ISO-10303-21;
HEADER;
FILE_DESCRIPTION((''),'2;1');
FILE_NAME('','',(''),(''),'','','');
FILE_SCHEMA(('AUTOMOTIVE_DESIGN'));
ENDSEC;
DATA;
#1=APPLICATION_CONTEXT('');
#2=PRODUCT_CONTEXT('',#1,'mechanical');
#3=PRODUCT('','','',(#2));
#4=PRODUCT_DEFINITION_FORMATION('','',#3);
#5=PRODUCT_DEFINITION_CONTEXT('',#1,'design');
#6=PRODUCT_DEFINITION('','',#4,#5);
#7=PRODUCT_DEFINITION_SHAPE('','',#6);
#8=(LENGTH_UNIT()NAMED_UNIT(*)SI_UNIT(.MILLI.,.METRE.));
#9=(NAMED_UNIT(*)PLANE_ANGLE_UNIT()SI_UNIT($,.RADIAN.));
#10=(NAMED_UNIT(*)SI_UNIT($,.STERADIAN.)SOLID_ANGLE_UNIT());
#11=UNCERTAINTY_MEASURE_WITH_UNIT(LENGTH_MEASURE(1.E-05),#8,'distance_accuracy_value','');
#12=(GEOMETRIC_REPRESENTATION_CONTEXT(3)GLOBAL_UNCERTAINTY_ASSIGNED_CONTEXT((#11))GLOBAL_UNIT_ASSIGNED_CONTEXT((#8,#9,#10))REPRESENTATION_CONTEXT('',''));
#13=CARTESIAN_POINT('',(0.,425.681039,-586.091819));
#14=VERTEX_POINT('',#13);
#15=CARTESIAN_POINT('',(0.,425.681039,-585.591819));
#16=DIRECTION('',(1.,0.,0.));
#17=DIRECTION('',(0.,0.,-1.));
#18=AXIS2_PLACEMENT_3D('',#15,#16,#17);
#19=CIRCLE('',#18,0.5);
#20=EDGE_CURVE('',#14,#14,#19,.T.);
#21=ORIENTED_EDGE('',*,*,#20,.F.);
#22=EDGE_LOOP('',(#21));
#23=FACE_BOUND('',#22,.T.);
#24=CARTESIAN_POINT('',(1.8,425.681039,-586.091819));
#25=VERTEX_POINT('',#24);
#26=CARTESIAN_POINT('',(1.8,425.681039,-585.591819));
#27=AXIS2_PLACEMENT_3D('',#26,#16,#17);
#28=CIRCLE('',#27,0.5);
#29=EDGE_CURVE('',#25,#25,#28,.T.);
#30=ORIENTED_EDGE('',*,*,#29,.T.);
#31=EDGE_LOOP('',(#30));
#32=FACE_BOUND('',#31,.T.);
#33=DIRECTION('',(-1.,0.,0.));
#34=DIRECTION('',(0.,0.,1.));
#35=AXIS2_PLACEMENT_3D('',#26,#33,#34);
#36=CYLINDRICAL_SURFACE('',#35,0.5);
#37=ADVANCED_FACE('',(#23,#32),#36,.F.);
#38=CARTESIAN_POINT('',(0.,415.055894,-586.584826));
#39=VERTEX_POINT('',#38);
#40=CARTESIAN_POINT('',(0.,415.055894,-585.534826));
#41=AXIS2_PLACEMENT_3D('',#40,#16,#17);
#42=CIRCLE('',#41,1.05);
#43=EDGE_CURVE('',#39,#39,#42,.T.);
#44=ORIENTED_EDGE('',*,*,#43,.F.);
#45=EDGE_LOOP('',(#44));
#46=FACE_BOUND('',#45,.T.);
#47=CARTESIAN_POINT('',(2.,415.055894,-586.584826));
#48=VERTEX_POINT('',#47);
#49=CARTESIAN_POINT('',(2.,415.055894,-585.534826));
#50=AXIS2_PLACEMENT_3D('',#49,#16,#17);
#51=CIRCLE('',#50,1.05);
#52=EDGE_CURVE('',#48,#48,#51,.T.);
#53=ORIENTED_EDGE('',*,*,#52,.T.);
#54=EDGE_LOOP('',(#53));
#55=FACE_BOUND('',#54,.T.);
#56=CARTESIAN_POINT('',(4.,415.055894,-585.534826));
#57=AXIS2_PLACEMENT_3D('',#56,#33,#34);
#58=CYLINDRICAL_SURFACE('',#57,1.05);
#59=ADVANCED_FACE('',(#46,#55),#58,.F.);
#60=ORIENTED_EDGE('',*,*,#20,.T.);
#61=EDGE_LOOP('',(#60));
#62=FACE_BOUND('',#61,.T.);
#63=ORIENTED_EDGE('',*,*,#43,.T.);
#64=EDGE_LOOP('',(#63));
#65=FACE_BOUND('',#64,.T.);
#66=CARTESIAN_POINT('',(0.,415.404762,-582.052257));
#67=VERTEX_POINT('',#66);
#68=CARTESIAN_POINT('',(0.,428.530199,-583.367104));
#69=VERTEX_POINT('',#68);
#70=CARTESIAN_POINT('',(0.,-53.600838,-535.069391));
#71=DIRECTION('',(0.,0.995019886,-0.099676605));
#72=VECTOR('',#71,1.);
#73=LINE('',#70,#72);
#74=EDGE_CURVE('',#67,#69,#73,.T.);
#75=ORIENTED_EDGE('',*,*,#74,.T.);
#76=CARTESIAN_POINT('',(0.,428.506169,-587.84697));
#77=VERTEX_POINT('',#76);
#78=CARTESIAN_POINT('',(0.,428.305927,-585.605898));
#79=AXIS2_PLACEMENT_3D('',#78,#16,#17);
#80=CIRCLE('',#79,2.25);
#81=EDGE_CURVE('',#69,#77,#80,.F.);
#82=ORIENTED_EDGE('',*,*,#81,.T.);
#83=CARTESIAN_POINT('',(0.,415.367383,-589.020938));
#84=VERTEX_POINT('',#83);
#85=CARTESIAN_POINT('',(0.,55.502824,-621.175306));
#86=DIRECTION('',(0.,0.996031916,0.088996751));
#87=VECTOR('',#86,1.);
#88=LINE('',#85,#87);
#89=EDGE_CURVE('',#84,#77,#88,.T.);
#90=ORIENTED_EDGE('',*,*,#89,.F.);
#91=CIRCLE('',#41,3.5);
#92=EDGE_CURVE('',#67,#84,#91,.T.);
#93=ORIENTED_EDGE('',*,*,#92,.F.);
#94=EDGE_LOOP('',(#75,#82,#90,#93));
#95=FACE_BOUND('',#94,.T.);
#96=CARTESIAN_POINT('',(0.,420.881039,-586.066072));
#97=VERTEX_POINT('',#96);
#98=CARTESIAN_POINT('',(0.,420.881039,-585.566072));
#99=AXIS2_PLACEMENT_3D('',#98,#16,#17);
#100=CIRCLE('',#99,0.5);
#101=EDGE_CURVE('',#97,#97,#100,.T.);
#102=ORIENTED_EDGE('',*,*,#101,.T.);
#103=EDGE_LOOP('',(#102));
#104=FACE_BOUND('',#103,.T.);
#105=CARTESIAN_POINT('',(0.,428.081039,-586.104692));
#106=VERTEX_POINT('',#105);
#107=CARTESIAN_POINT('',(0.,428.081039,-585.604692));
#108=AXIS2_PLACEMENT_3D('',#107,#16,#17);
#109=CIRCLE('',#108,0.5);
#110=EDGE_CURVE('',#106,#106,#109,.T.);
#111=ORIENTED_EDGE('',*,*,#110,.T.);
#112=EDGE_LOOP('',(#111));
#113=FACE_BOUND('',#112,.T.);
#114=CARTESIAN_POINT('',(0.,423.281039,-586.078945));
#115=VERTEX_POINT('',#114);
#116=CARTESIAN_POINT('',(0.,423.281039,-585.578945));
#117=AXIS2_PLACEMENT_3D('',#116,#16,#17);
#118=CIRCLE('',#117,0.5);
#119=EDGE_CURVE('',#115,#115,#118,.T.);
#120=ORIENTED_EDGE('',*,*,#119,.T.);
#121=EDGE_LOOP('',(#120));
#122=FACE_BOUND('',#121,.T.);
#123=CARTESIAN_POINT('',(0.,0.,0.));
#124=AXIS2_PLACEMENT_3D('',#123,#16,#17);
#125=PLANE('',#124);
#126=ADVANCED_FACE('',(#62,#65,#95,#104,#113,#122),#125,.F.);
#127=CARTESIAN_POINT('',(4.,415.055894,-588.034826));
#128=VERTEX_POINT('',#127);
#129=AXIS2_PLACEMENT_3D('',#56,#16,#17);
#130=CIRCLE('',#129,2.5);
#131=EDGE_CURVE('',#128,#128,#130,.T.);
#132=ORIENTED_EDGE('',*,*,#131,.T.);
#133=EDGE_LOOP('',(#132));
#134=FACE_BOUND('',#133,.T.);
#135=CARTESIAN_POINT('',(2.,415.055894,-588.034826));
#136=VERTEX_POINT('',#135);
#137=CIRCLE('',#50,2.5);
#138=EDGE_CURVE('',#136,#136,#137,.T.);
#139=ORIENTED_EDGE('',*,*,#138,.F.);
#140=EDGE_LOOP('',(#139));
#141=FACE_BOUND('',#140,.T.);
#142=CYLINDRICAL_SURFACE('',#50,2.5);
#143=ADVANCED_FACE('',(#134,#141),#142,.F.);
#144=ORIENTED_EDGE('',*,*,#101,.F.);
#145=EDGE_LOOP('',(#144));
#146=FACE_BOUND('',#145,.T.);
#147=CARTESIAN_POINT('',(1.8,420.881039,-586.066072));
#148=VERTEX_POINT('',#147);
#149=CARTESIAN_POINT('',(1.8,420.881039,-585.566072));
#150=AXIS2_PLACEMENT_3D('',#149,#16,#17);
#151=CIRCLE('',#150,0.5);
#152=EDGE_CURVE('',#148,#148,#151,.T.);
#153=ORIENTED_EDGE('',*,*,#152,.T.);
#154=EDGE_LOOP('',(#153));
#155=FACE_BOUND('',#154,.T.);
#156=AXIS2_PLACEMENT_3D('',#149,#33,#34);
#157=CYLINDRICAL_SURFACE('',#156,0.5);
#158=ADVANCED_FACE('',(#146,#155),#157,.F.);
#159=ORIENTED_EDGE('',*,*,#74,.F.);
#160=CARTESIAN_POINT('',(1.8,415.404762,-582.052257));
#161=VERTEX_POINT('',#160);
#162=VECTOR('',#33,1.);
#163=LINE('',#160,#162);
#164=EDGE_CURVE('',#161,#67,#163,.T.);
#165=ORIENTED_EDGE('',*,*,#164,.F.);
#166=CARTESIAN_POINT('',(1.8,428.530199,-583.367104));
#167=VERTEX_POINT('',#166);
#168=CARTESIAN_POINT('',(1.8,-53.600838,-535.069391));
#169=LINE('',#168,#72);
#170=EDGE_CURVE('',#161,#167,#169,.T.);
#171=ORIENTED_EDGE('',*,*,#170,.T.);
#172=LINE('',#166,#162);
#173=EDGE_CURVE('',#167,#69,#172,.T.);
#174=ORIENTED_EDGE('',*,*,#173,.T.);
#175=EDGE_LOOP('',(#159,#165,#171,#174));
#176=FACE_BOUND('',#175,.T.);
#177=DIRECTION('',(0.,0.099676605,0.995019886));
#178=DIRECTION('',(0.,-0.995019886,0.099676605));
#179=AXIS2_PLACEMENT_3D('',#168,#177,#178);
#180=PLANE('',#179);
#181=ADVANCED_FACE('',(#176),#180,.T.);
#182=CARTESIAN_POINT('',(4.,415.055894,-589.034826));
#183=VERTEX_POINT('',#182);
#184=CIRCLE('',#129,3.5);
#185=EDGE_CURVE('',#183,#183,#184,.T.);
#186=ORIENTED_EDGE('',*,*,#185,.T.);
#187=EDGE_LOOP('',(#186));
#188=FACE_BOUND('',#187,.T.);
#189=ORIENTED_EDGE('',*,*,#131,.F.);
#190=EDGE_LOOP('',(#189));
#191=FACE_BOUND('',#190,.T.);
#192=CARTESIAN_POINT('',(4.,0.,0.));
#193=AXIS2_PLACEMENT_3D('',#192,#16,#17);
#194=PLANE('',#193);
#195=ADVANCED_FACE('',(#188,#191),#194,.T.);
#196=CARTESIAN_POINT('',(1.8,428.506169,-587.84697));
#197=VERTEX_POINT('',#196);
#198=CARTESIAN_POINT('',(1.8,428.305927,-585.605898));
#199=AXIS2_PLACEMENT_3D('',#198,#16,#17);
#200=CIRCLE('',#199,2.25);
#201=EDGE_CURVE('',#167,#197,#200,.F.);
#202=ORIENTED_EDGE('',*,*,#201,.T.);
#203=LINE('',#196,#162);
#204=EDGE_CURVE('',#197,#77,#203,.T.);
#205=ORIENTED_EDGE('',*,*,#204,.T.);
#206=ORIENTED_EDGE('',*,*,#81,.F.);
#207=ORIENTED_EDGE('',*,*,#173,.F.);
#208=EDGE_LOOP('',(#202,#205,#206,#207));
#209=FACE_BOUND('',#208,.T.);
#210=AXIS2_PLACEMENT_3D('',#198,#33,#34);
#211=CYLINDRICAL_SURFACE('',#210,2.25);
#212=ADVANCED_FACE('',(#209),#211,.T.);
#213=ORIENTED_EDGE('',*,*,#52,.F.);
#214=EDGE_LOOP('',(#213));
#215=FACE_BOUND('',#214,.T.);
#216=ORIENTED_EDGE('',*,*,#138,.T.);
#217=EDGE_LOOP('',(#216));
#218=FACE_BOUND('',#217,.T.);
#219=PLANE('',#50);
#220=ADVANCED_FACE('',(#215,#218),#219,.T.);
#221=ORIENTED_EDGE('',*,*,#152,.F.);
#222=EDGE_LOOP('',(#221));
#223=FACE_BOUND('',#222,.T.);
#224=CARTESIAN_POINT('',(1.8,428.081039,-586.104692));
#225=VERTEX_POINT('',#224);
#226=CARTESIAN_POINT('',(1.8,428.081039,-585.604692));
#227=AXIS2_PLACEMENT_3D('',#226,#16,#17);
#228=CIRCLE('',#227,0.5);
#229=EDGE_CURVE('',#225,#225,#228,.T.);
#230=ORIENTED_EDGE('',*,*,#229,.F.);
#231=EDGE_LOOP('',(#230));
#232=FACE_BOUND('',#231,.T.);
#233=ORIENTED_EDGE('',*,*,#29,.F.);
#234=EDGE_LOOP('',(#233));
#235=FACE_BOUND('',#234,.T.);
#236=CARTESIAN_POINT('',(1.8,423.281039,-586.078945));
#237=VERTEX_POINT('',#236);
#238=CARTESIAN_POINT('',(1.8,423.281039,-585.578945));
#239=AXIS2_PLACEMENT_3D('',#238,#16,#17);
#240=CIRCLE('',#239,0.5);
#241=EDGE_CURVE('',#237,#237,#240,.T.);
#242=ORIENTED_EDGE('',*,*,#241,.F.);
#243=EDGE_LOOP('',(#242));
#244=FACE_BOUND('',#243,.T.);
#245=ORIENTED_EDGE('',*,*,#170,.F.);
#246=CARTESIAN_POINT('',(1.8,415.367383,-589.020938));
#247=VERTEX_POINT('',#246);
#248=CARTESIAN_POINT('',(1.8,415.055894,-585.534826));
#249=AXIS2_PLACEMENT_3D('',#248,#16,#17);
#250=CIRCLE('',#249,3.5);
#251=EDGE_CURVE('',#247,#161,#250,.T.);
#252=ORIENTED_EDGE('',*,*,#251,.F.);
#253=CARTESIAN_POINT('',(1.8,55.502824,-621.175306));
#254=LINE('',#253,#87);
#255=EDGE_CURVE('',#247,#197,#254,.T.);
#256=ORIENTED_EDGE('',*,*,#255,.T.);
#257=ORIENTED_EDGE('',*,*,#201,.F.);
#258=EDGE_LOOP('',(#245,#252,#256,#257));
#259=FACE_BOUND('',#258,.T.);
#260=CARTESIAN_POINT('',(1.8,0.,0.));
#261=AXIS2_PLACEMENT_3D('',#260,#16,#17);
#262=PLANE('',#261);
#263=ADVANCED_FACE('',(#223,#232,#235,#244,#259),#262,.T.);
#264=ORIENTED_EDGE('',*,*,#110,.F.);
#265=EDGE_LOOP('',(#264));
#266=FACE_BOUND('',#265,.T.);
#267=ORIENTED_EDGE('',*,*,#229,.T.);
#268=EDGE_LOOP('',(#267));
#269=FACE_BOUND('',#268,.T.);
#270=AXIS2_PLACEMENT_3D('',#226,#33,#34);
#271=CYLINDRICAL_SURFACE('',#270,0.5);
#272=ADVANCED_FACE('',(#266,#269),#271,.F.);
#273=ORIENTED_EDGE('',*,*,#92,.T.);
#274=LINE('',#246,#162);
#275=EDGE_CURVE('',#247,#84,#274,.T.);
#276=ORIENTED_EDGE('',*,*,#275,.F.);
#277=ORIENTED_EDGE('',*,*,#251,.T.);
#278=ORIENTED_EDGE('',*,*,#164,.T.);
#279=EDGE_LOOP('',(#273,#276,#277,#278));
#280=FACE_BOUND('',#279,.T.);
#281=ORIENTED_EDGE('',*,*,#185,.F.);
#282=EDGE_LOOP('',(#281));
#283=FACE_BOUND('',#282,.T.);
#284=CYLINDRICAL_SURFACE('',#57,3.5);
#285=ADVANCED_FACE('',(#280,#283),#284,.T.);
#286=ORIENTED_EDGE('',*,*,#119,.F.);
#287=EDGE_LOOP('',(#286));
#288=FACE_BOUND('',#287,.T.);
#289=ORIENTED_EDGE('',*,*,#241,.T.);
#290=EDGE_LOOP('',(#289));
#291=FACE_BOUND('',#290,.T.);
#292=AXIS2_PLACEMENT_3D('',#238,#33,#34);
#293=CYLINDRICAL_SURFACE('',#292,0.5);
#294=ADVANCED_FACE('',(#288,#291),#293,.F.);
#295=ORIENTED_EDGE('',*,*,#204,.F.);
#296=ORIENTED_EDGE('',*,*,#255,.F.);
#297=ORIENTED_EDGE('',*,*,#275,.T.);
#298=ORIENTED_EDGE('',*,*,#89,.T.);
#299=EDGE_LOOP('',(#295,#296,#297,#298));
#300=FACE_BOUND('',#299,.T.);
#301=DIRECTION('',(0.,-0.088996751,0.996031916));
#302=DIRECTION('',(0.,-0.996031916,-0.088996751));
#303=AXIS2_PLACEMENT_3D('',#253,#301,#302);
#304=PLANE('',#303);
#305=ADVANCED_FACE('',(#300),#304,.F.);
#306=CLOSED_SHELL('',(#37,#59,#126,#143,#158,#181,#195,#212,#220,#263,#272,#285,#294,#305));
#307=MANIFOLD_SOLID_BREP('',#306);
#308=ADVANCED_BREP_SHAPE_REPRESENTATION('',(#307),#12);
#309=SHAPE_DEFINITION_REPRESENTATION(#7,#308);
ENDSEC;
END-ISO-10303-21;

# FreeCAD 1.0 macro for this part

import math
import FreeCAD as App
import Part
import Sketcher
from FreeCAD import Vector

doc = App.newDocument("Part")
body = doc.addObject("PartDesign::Body", "Body")

# Sketch on YZ plane
sketch1 = doc.addObject("Sketcher::SketchObject", "Sketch")
body.addObject(sketch1)
sketch1.AttachmentSupport = (doc.YZ_Plane, [""])
sketch1.MapMode = "FlatFace"
sketch1.addGeometry(Part.Circle(Vector(415.055894, -585.534826, 0), Vector(0, 0, 1), 3.5), False)
sketch1.addGeometry(Part.Circle(Vector(415.055894, -585.534826, 0), Vector(0, 0, 1), 1.05), False)
sketch1.addConstraint(Sketcher.Constraint("Coincident", 1, 3, 0, 3))
sketch1.addConstraint(Sketcher.Constraint("Diameter", 0, 7.0))
sketch1.addConstraint(Sketcher.Constraint("Diameter", 1, 2.1))
sketch1.addConstraint(Sketcher.Constraint("DistanceX", -1, 1, 0, 3, 415.055894))
sketch1.addConstraint(Sketcher.Constraint("DistanceY", 0, 3, -1, 1, 585.534826))
pad1 = doc.addObject("PartDesign::Pad", "Pad")
body.addObject(pad1)
pad1.Profile = sketch1
pad1.Length = 4

# Sketch on YZ plane
sketch2 = doc.addObject("Sketcher::SketchObject", "Sketch001")
body.addObject(sketch2)
sketch2.AttachmentSupport = (doc.YZ_Plane, [""])
sketch2.MapMode = "FlatFace"
sketch2.addGeometry(Part.LineSegment(Vector(428.530199, -583.367104, 0), Vector(415.404762, -582.052257, 0)), False)
sketch2.addGeometry(Part.ArcOfCircle(Part.Circle(Vector(415.055894, -585.534826, 0), Vector(0, 0, 1), 3.5), math.radians(-84.894106), math.radians(84.279452)), False)
sketch2.addGeometry(Part.LineSegment(Vector(415.367383, -589.020938, 0), Vector(428.506169, -587.84697, 0)), False)
sketch2.addGeometry(Part.ArcOfCircle(Part.Circle(Vector(428.305927, -585.605898, 0), Vector(0, 0, 1), 2.25), math.radians(-84.894106), math.radians(84.279452)), False)
sketch2.addGeometry(Part.Circle(Vector(420.881039, -585.566072, 0), Vector(0, 0, 1), 0.5), False)
sketch2.addGeometry(Part.Circle(Vector(423.281039, -585.578945, 0), Vector(0, 0, 1), 0.5), False)
sketch2.addGeometry(Part.Circle(Vector(425.681039, -585.591819, 0), Vector(0, 0, 1), 0.5), False)
sketch2.addGeometry(Part.Circle(Vector(428.081039, -585.604692, 0), Vector(0, 0, 1), 0.5), False)
sketch2.addConstraint(Sketcher.Constraint("Tangent", 0, 2, 1, 2))
sketch2.addConstraint(Sketcher.Constraint("Tangent", 1, 1, 2, 1))
sketch2.addConstraint(Sketcher.Constraint("Tangent", 2, 2, 3, 1))
sketch2.addConstraint(Sketcher.Constraint("Tangent", 3, 2, 0, 1))
sketch2.addConstraint(Sketcher.Constraint("Equal", 4, 5))
sketch2.addConstraint(Sketcher.Constraint("Equal", 5, 6))
sketch2.addConstraint(Sketcher.Constraint("Equal", 6, 7))
sketch2.addConstraint(Sketcher.Constraint("Diameter", 4, 1.0))
sketch2.addConstraint(Sketcher.Constraint("Radius", 1, 3.5))
sketch2.addConstraint(Sketcher.Constraint("Radius", 3, 2.25))
sketch2.addConstraint(Sketcher.Constraint("DistanceX", 4, 3, 5, 3, 2.4))
sketch2.addConstraint(Sketcher.Constraint("DistanceX", 5, 3, 6, 3, 2.4))
sketch2.addConstraint(Sketcher.Constraint("DistanceX", 6, 3, 7, 3, 2.4))
sketch2.addConstraint(Sketcher.Constraint("DistanceY", 3, 3, -1, 1, 585.605898))
sketch2.addConstraint(Sketcher.Constraint("DistanceX", -1, 1, 3, 2, 428.530199))
sketch2.addConstraint(Sketcher.Constraint("DistanceY", 2, 2, 4, 3, 2.280898))
sketch2.addConstraint(Sketcher.Constraint("Distance", 0, 13.19113))
sketch2.addConstraint(Sketcher.Constraint("DistanceX", -1, 1, 4, 3, 420.881039))
sketch2.addConstraint(Sketcher.Constraint("DistanceY", 4, 3, -1, 1, 585.566072))
sketch2.addConstraint(Sketcher.Constraint("DistanceY", 6, 3, -1, 1, 585.591819))
sketch2.addConstraint(Sketcher.Constraint("DistanceY", 5, 3, 1, 3, 0.044119))
sketch2.addConstraint(Sketcher.Constraint("DistanceY", 7, 3, 4, 3, 0.03862))
pad2 = doc.addObject("PartDesign::Pad", "Pad001")
body.addObject(pad2)
pad2.Profile = sketch2
pad2.Length = 1.8

# Sketch on YZ plane
sketch3 = doc.addObject("Sketcher::SketchObject", "Sketch002")
body.addObject(sketch3)
sketch3.AttachmentSupport = (doc.YZ_Plane, [""])
sketch3.MapMode = "FlatFace"
sketch3.AttachmentOffset = App.Placement(Vector(0, 0, 4), App.Rotation())
sketch3.addGeometry(Part.Circle(Vector(415.055894, -585.534826, 0), Vector(0, 0, 1), 2.5), False)
sketch3.addConstraint(Sketcher.Constraint("Diameter", 0, 5.0))
sketch3.addConstraint(Sketcher.Constraint("DistanceX", -1, 1, 0, 3, 415.055894))
sketch3.addConstraint(Sketcher.Constraint("DistanceY", 0, 3, -1, 1, 585.534826))
pocket1 = doc.addObject("PartDesign::Pocket", "Pocket")
body.addObject(pocket1)
pocket1.Profile = sketch3
pocket1.Length = 2

doc.recompute()
